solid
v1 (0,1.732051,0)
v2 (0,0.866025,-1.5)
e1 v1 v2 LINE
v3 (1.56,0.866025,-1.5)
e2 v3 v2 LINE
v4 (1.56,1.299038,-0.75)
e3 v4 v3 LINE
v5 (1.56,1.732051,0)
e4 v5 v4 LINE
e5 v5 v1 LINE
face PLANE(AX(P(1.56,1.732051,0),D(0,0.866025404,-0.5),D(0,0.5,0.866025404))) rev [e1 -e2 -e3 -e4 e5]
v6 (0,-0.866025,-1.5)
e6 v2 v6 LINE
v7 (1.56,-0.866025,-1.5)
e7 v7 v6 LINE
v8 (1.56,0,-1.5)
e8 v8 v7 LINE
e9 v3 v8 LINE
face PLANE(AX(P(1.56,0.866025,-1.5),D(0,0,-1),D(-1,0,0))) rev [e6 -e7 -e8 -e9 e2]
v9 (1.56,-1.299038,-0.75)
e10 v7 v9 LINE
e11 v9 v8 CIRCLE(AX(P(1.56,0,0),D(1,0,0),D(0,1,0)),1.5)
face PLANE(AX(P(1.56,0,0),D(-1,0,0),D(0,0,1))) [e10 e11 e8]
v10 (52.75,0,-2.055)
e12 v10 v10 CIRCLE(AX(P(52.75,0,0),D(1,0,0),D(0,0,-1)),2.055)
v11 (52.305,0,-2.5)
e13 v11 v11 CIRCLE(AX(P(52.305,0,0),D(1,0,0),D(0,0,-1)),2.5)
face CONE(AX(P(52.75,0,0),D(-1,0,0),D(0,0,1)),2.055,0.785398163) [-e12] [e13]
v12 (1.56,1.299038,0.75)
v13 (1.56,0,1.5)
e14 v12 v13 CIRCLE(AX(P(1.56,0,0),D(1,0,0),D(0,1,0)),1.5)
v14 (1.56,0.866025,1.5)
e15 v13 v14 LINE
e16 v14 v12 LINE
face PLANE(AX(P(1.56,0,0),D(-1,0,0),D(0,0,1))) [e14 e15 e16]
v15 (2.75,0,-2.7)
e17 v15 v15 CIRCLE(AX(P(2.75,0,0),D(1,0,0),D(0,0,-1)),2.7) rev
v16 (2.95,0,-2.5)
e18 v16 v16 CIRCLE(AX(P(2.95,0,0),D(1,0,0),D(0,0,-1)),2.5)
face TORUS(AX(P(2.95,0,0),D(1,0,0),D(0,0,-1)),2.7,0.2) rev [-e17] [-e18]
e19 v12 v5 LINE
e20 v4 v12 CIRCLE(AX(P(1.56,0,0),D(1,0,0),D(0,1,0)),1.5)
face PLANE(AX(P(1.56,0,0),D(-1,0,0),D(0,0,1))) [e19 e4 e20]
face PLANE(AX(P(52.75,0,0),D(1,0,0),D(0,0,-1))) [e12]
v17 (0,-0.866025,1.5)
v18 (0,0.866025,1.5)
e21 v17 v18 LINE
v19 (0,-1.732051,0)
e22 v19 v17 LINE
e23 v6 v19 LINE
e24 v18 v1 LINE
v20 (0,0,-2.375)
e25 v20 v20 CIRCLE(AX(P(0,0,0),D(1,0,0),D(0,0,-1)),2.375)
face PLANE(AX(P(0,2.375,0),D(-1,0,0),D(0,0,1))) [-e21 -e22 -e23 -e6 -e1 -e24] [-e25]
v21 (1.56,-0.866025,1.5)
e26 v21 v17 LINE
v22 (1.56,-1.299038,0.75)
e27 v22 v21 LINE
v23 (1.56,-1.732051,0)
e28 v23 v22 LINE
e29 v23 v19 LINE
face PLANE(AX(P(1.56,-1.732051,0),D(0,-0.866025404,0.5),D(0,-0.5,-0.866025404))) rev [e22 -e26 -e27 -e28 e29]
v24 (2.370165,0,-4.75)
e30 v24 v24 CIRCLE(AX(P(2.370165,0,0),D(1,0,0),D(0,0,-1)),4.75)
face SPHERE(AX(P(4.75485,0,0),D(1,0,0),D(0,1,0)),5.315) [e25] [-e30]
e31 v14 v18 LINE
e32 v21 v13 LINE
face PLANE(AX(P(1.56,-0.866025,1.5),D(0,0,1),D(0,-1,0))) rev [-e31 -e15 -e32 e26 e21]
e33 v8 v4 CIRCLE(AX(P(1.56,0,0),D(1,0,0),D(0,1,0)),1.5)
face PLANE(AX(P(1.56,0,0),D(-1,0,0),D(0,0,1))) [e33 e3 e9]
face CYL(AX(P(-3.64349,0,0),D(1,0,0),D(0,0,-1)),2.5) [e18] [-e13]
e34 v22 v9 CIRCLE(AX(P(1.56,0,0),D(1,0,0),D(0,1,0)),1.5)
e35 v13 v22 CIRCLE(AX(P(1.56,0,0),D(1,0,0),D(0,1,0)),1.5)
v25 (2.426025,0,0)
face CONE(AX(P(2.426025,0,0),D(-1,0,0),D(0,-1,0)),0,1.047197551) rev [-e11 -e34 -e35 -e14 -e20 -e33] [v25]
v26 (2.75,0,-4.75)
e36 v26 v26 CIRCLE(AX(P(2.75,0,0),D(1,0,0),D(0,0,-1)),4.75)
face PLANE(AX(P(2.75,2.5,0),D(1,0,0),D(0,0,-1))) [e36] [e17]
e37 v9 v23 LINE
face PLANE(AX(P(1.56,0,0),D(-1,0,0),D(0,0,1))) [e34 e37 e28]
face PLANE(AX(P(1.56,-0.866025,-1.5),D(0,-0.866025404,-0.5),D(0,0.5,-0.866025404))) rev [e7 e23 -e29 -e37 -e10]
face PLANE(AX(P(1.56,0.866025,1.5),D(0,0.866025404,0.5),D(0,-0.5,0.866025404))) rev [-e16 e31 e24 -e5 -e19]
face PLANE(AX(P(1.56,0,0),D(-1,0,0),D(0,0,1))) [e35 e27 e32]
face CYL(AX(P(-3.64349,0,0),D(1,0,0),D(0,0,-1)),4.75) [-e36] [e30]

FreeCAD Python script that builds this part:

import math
import FreeCAD as App
import Part
import Sketcher

V = App.Vector
Q = App.Units.Quantity


def edges_at(feature, points):
    """Names of the edges that pass closest to the given points."""
    edges = feature.Shape.Edges
    near = lambda p: min(range(len(edges)), key=lambda i: edges[i].distToShape(Part.Vertex(*p))[0])
    return sorted({f"Edge{near(p) + 1}" for p in points})

doc = App.newDocument("Part")
body = doc.addObject("PartDesign::Body", "Body")

sketch1 = doc.addObject("Sketcher::SketchObject", "Sketch")
body.addObject(sketch1)
sketch1.AttachmentSupport = (doc.XY_Plane, [""])
sketch1.MapMode = "FlatFace"
sketch1.addGeometry(Part.LineSegment(V(0, 2.375, 0), V(0, 0, 0)), False)
sketch1.addGeometry(Part.LineSegment(V(0, 0, 0), V(52.75, 0, 0)), False)
sketch1.addGeometry(Part.LineSegment(V(52.75, 0, 0), V(52.75, 2.055, 0)), False)
sketch1.addGeometry(Part.LineSegment(V(52.75, 2.055, 0), V(52.305, 2.5, 0)), False)
sketch1.addGeometry(Part.LineSegment(V(52.305, 2.5, 0), V(2.75, 2.5, 0)), False)
sketch1.addGeometry(Part.LineSegment(V(2.75, 2.5, 0), V(2.75, 4.75, 0)), False)
sketch1.addGeometry(Part.LineSegment(V(2.75, 4.75, 0), V(2.370165, 4.75, 0)), False)
sketch1.addGeometry(Part.ArcOfCircle(Part.Circle(V(4.75485, 0, 0), V(0, 0, 1), 5.315), math.radians(116.658438), math.radians(153.458331)), False)
sketch1.addConstraint(Sketcher.Constraint("Coincident", 0, 2, 1, 1))
sketch1.addConstraint(Sketcher.Constraint("Coincident", 1, 2, 2, 1))
sketch1.addConstraint(Sketcher.Constraint("Coincident", 2, 2, 3, 1))
sketch1.addConstraint(Sketcher.Constraint("Coincident", 3, 2, 4, 1))
sketch1.addConstraint(Sketcher.Constraint("Coincident", 4, 2, 5, 1))
sketch1.addConstraint(Sketcher.Constraint("Coincident", 5, 2, 6, 1))
sketch1.addConstraint(Sketcher.Constraint("Coincident", 6, 2, 7, 1))
sketch1.addConstraint(Sketcher.Constraint("Coincident", 7, 2, 0, 1))
sketch1.addConstraint(Sketcher.Constraint("Vertical", 0))
sketch1.addConstraint(Sketcher.Constraint("Horizontal", 1))
sketch1.addConstraint(Sketcher.Constraint("Vertical", 2))
sketch1.addConstraint(Sketcher.Constraint("Horizontal", 4))
sketch1.addConstraint(Sketcher.Constraint("Vertical", 5))
sketch1.addConstraint(Sketcher.Constraint("Horizontal", 6))
sketch1.addConstraint(Sketcher.Constraint("Coincident", 0, 2, -1, 1))
sketch1.addConstraint(Sketcher.Constraint("PointOnObject", 7, 3, -1))
sketch1.addConstraint(Sketcher.Constraint("Angle", 3, Q("135 deg")))
sketch1.addConstraint(Sketcher.Constraint("Radius", 7, Q("5.315 mm")))
sketch1.addConstraint(Sketcher.Constraint("DistanceX", 4, 2, 2, 2, Q("50 mm")))
sketch1.addConstraint(Sketcher.Constraint("DistanceX", 1, 1, 1, 2, Q("52.75 mm")))
sketch1.addConstraint(Sketcher.Constraint("DistanceY", 5, 1, 5, 2, Q("2.25 mm")))
sketch1.addConstraint(Sketcher.Constraint("DistanceY", -1, 1, 3, 2, Q("2.5 mm")))
sketch1.addConstraint(Sketcher.Constraint("DistanceX", 4, 2, 4, 1, Q("49.555 mm")))
sketch1.addConstraint(Sketcher.Constraint("DistanceY", 0, 2, 0, 1, Q("2.375 mm")))
revolution = doc.addObject("PartDesign::Revolution", "Revolution")
body.addObject(revolution)
revolution.Profile = sketch1
revolution.ReferenceAxis = (sketch1, ["H_Axis"])
revolution.Angle = 360
doc.recompute()

fillet = doc.addObject("PartDesign::Fillet", "Fillet")
body.addObject(fillet)
fillet.Base = (revolution, edges_at(revolution, [(2.75, -2.5, 0)]))
fillet.Radius = 0.2

sketch2 = doc.addObject("Sketcher::SketchObject", "Sketch001")
body.addObject(sketch2)
sketch2.AttachmentSupport = (doc.XY_Plane, [""])
sketch2.MapMode = "FlatFace"
sketch2.addGeometry(Part.LineSegment(V(0, 1.5, 0), V(0, 0, 0)), False)
sketch2.addGeometry(Part.LineSegment(V(0, 0, 0), V(2.426025, 0, 0)), False)
sketch2.addGeometry(Part.LineSegment(V(2.426025, 0, 0), V(1.56, 1.5, 0)), False)
sketch2.addGeometry(Part.LineSegment(V(1.56, 1.5, 0), V(0, 1.5, 0)), False)
sketch2.addConstraint(Sketcher.Constraint("Coincident", 0, 2, 1, 1))
sketch2.addConstraint(Sketcher.Constraint("Coincident", 1, 2, 2, 1))
sketch2.addConstraint(Sketcher.Constraint("Coincident", 2, 2, 3, 1))
sketch2.addConstraint(Sketcher.Constraint("Coincident", 3, 2, 0, 1))
sketch2.addConstraint(Sketcher.Constraint("Vertical", 0))
sketch2.addConstraint(Sketcher.Constraint("Horizontal", 1))
sketch2.addConstraint(Sketcher.Constraint("Horizontal", 3))
sketch2.addConstraint(Sketcher.Constraint("Coincident", 0, 2, -1, 1))
sketch2.addConstraint(Sketcher.Constraint("Angle", 2, Q("120 deg")))
sketch2.addConstraint(Sketcher.Constraint("DistanceY", 0, 2, 0, 1, Q("1.5 mm")))
sketch2.addConstraint(Sketcher.Constraint("DistanceX", 3, 2, 3, 1, Q("1.56 mm")))
groove = doc.addObject("PartDesign::Groove", "Groove")
body.addObject(groove)
groove.Profile = sketch2
groove.ReferenceAxis = (sketch2, ["H_Axis"])
groove.Angle = 360

sketch3 = doc.addObject("Sketcher::SketchObject", "Sketch002")
body.addObject(sketch3)
sketch3.AttachmentSupport = (doc.YZ_Plane, [""])
sketch3.MapMode = "FlatFace"
sketch3.addGeometry(Part.LineSegment(V(-0.866025, -1.5, 0), V(-1.732051, 0, 0)), False)
sketch3.addGeometry(Part.LineSegment(V(-1.732051, 0, 0), V(-0.866025, 1.5, 0)), False)
sketch3.addGeometry(Part.LineSegment(V(-0.866025, 1.5, 0), V(0.866025, 1.5, 0)), False)
sketch3.addGeometry(Part.LineSegment(V(0.866025, 1.5, 0), V(1.732051, 0, 0)), False)
sketch3.addGeometry(Part.LineSegment(V(1.732051, 0, 0), V(0.866025, -1.5, 0)), False)
sketch3.addGeometry(Part.LineSegment(V(0.866025, -1.5, 0), V(-0.866025, -1.5, 0)), False)
sketch3.addConstraint(Sketcher.Constraint("Coincident", 0, 2, 1, 1))
sketch3.addConstraint(Sketcher.Constraint("Coincident", 1, 2, 2, 1))
sketch3.addConstraint(Sketcher.Constraint("Coincident", 2, 2, 3, 1))
sketch3.addConstraint(Sketcher.Constraint("Coincident", 3, 2, 4, 1))
sketch3.addConstraint(Sketcher.Constraint("Coincident", 4, 2, 5, 1))
sketch3.addConstraint(Sketcher.Constraint("Coincident", 5, 2, 0, 1))
sketch3.addConstraint(Sketcher.Constraint("Horizontal", 2))
sketch3.addConstraint(Sketcher.Constraint("Horizontal", 5))
sketch3.addConstraint(Sketcher.Constraint("Symmetric", 0, 2, 3, 2, -1, 1))
sketch3.addConstraint(Sketcher.Constraint("Symmetric", 1, 2, 4, 2, -1, 1))
sketch3.addConstraint(Sketcher.Constraint("PointOnObject", 0, 2, -1))
sketch3.addConstraint(Sketcher.Constraint("Parallel", 0, 3))
sketch3.addConstraint(Sketcher.Constraint("Vertical", 2, 2, 4, 2))
sketch3.addConstraint(Sketcher.Constraint("Angle", 0, Q("120 deg")))
sketch3.addConstraint(Sketcher.Constraint("DistanceY", 4, 2, 2, 2, Q("3 mm")))
sketch3.addConstraint(Sketcher.Constraint("DistanceX", 2, 1, 2, 2, Q("1.732051 mm")))
pocket1 = doc.addObject("PartDesign::Pocket", "Pocket")
body.addObject(pocket1)
pocket1.Profile = sketch3
pocket1.Length = 1.56
pocket1.Reversed = True

doc.recompute()
